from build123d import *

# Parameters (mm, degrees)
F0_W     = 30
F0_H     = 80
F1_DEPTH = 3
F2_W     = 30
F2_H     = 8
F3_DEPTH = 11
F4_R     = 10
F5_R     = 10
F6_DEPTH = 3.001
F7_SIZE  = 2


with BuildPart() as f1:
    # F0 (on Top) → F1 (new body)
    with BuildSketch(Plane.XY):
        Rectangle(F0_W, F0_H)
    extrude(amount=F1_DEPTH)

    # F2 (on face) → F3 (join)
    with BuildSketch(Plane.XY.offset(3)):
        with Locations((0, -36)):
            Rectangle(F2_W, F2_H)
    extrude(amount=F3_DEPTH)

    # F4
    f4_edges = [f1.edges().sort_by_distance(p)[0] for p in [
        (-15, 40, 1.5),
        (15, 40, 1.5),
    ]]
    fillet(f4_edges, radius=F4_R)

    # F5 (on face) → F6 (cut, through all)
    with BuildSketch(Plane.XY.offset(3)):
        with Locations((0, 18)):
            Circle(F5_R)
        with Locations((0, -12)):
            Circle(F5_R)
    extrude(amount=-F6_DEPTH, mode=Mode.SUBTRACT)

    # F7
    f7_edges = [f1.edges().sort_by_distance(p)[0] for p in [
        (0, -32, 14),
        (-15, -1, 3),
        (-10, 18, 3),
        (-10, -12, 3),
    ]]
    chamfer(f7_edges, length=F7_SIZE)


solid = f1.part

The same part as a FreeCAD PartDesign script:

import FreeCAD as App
import Part
import Sketcher
from FreeCAD import Vector


def edges_at(feature, points):
    """Names of the edges that pass closest to the given points."""
    edges = feature.Shape.Edges
    near = lambda p: min(range(len(edges)), key=lambda i: edges[i].distToShape(Part.Vertex(*p))[0])
    return sorted({f"Edge{near(p) + 1}" for p in points})

doc = App.newDocument("Part")
body = doc.addObject("PartDesign::Body", "Body")

sketch1 = doc.addObject("Sketcher::SketchObject", "Sketch")
body.addObject(sketch1)
sketch1.AttachmentSupport = (doc.XY_Plane, [""])
sketch1.MapMode = "FlatFace"
sketch1.addGeometry([
    Part.LineSegment(Vector(-15, 40, 0), Vector(-15, -40, 0)),
    Part.LineSegment(Vector(-15, -40, 0), Vector(15, -40, 0)),
    Part.LineSegment(Vector(15, -40, 0), Vector(15, 40, 0)),
    Part.LineSegment(Vector(15, 40, 0), Vector(-15, 40, 0)),
], False)
sketch1.addConstraint([
    Sketcher.Constraint("Coincident", 0, 2, 1, 1),
    Sketcher.Constraint("Coincident", 1, 2, 2, 1),
    Sketcher.Constraint("Coincident", 2, 2, 3, 1),
    Sketcher.Constraint("Coincident", 3, 2, 0, 1),
    Sketcher.Constraint("Vertical", 0),
    Sketcher.Constraint("Horizontal", 1),
    Sketcher.Constraint("Vertical", 2),
    Sketcher.Constraint("Horizontal", 3),
    Sketcher.Constraint("Symmetric", 0, 2, 2, 2, -1, 1),
    Sketcher.Constraint("DistanceX", 1, 1, 1, 2, 30.0),
    Sketcher.Constraint("DistanceY", 0, 2, 0, 1, 80.0),
])
pad1 = doc.addObject("PartDesign::Pad", "Pad")
body.addObject(pad1)
pad1.Profile = sketch1
pad1.Length = 3

sketch2 = doc.addObject("Sketcher::SketchObject", "Sketch001")
body.addObject(sketch2)
sketch2.AttachmentSupport = (doc.XY_Plane, [""])
sketch2.MapMode = "FlatFace"
sketch2.AttachmentOffset = App.Placement(Vector(0, 0, 3), App.Rotation())
sketch2.addGeometry([
    Part.LineSegment(Vector(-15, -32, 0), Vector(-15, -40, 0)),
    Part.LineSegment(Vector(-15, -40, 0), Vector(15, -40, 0)),
    Part.LineSegment(Vector(15, -40, 0), Vector(15, -32, 0)),
    Part.LineSegment(Vector(15, -32, 0), Vector(-15, -32, 0)),
], False)
sketch2.addConstraint([
    Sketcher.Constraint("Coincident", 0, 2, 1, 1),
    Sketcher.Constraint("Coincident", 1, 2, 2, 1),
    Sketcher.Constraint("Coincident", 2, 2, 3, 1),
    Sketcher.Constraint("Coincident", 3, 2, 0, 1),
    Sketcher.Constraint("Vertical", 0),
    Sketcher.Constraint("Horizontal", 1),
    Sketcher.Constraint("Vertical", 2),
    Sketcher.Constraint("Horizontal", 3),
    Sketcher.Constraint("DistanceX", 1, 1, 1, 2, 30.0),
    Sketcher.Constraint("DistanceY", 0, 2, 0, 1, 8.0),
    Sketcher.Constraint("DistanceX", 0, 2, -1, 1, 15.0),
    Sketcher.Constraint("DistanceY", 0, 2, -1, 1, 40.0),
])
pad2 = doc.addObject("PartDesign::Pad", "Pad001")
body.addObject(pad2)
pad2.Profile = sketch2
pad2.Length = 11
doc.recompute()

fillet = doc.addObject("PartDesign::Fillet", "Fillet")
body.addObject(fillet)
fillet.Base = (pad2, edges_at(pad2, [(-15, 40, 1.5), (15, 40, 1.5)]))
fillet.Radius = 10

sketch3 = doc.addObject("Sketcher::SketchObject", "Sketch002")
body.addObject(sketch3)
sketch3.AttachmentSupport = (doc.XY_Plane, [""])
sketch3.MapMode = "FlatFace"
sketch3.AttachmentOffset = App.Placement(Vector(0, 0, 3), App.Rotation())
sketch3.addGeometry([
    Part.Circle(Vector(0, 18, 0), Vector(0, 0, 1), 10),
    Part.Circle(Vector(0, -12, 0), Vector(0, 0, 1), 10),
], False)
sketch3.addConstraint([
    Sketcher.Constraint("Equal", 0, 1),
    Sketcher.Constraint("PointOnObject", 0, 3, -2),
    Sketcher.Constraint("PointOnObject", 1, 3, -2),
    Sketcher.Constraint("Diameter", 0, 20.0),
    Sketcher.Constraint("DistanceY", -1, 1, 0, 3, 18.0),
    Sketcher.Constraint("DistanceY", 1, 3, -1, 1, 12.0),
])
pocket1 = doc.addObject("PartDesign::Pocket", "Pocket")
body.addObject(pocket1)
pocket1.Profile = sketch3
pocket1.Type = "ThroughAll"
doc.recompute()

chamfer = doc.addObject("PartDesign::Chamfer", "Chamfer")
body.addObject(chamfer)
chamfer.Base = (pocket1, edges_at(pocket1, [
    (0, -32, 14),
    (-15, -1, 3),
    (-10, 18, 3),
    (-10, -12, 3),
]))
chamfer.Size = 2

doc.recompute()
